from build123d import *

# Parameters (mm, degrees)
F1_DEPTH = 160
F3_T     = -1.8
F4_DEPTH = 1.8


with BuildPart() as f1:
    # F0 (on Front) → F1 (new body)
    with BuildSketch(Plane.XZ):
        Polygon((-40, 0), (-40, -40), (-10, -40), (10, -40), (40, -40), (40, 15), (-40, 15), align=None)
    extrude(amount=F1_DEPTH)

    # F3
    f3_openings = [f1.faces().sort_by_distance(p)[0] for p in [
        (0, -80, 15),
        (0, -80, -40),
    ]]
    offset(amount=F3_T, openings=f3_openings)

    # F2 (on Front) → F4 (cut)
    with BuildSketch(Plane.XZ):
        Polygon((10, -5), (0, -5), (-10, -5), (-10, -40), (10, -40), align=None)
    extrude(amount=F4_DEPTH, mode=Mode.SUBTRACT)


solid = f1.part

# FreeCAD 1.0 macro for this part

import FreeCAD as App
import Part
import Sketcher

V = App.Vector


def faces_at(feature, points):
    """Names of the faces that lie closest to the given points."""
    faces = feature.Shape.Faces
    near = lambda p: min(range(len(faces)), key=lambda i: faces[i].distToShape(Part.Vertex(*p))[0])
    return sorted({f"Face{near(p) + 1}" for p in points})

doc = App.newDocument("Part")
body = doc.addObject("PartDesign::Body", "Body")

sketch1 = body.newObject("Sketcher::SketchObject", "Sketch")
sketch1.AttachmentSupport = (doc.getObject("XZ_Plane"), [""])
sketch1.MapMode = "FlatFace"
sketch1.addGeometry([
    Part.LineSegment(V(-40, -40, 0), V(40, -40, 0)),
    Part.LineSegment(V(40, -40, 0), V(40, 15, 0)),
    Part.LineSegment(V(40, 15, 0), V(-40, 15, 0)),
    Part.LineSegment(V(-40, 15, 0), V(-40, -40, 0)),
], False)
sketch1.addConstraint([
    Sketcher.Constraint("Coincident", 0, 2, 1, 1),
    Sketcher.Constraint("Coincident", 1, 2, 2, 1),
    Sketcher.Constraint("Coincident", 2, 2, 3, 1),
    Sketcher.Constraint("Coincident", 3, 2, 0, 1),
    Sketcher.Constraint("Horizontal", 0),
    Sketcher.Constraint("Vertical", 1),
    Sketcher.Constraint("Horizontal", 2),
    Sketcher.Constraint("Vertical", 3),
    Sketcher.Constraint("DistanceX", 0, 1, 0, 2, 80.0),
    Sketcher.Constraint("DistanceY", 1, 1, 1, 2, 55.0),
    Sketcher.Constraint("DistanceX", -1, 1, 0, 2, 40.0),
    Sketcher.Constraint("DistanceY", 0, 2, -1, 1, 40.0),
])
pad1 = body.newObject("PartDesign::Pad", "Pad")
pad1.Profile = sketch1
pad1.Length = 160
doc.recompute()

thickness = body.newObject("PartDesign::Thickness", "Thickness")
thickness.Base = (pad1, faces_at(pad1, [(0, -80, 15), (0, -80, -40)]))
thickness.Value = 1.8
thickness.Reversed = True
thickness.Join = "Arc"

sketch2 = body.newObject("Sketcher::SketchObject", "Sketch001")
sketch2.AttachmentSupport = (doc.getObject("XZ_Plane"), [""])
sketch2.MapMode = "FlatFace"
sketch2.addGeometry([
    Part.LineSegment(V(10, -5, 0), V(-10, -5, 0)),
    Part.LineSegment(V(-10, -5, 0), V(-10, -40, 0)),
    Part.LineSegment(V(-10, -40, 0), V(10, -40, 0)),
    Part.LineSegment(V(10, -40, 0), V(10, -5, 0)),
], False)
sketch2.addConstraint([
    Sketcher.Constraint("Coincident", 0, 2, 1, 1),
    Sketcher.Constraint("Coincident", 1, 2, 2, 1),
    Sketcher.Constraint("Coincident", 2, 2, 3, 1),
    Sketcher.Constraint("Coincident", 3, 2, 0, 1),
    Sketcher.Constraint("Horizontal", 0),
    Sketcher.Constraint("Vertical", 1),
    Sketcher.Constraint("Horizontal", 2),
    Sketcher.Constraint("Vertical", 3),
    Sketcher.Constraint("DistanceX", 0, 2, 0, 1, 20.0),
    Sketcher.Constraint("DistanceY", 1, 2, 1, 1, 35.0),
    Sketcher.Constraint("DistanceX", 0, 2, -1, 1, 10.0),
    Sketcher.Constraint("DistanceY", 0, 2, -1, 1, 5.0),
])
pocket1 = body.newObject("PartDesign::Pocket", "Pocket")
pocket1.Profile = sketch2
pocket1.Length = 1.8
pocket1.Reversed = True

doc.recompute()
